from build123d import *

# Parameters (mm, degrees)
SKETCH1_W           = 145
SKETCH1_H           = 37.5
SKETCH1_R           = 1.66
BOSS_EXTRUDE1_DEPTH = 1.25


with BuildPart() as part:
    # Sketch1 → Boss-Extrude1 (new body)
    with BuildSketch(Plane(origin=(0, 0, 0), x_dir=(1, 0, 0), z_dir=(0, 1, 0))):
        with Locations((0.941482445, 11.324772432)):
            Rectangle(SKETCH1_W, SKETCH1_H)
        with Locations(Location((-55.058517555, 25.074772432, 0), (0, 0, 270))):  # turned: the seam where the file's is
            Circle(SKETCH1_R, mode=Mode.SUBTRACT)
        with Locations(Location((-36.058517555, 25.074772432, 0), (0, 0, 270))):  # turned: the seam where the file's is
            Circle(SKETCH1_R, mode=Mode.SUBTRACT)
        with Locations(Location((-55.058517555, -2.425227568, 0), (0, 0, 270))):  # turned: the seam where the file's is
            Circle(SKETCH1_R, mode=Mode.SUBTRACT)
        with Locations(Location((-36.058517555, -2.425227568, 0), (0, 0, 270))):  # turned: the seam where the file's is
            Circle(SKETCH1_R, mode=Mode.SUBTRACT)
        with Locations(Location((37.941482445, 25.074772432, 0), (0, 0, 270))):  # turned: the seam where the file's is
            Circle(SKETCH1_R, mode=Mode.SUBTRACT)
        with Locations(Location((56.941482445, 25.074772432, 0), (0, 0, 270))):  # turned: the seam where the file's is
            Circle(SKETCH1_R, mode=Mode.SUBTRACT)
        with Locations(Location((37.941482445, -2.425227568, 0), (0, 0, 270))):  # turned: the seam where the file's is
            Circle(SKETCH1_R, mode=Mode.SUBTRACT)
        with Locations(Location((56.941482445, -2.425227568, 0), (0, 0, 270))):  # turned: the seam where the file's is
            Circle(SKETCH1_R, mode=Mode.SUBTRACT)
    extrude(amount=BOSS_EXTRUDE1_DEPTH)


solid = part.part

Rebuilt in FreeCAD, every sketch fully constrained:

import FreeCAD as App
import Part
import Sketcher
Q = App.Units.Quantity

doc = App.newDocument("Part")
body = doc.addObject("PartDesign::Body", "Body")

sketch1 = body.newObject("Sketcher::SketchObject", "Sketch")
sketch1.AttachmentSupport = (doc.getObject("XZ_Plane"), [""])
sketch1.MapMode = "FlatFace"
sketch1.addGeometry([
    Part.LineSegment(App.Vector(-71.558518, -30.074772, 0), App.Vector(-71.558518, 7.425228, 0)),
    Part.LineSegment(App.Vector(-71.558518, 7.425228, 0), App.Vector(73.441482, 7.425228, 0)),
    Part.LineSegment(App.Vector(73.441482, 7.425228, 0), App.Vector(73.441482, -30.074772, 0)),
    Part.LineSegment(App.Vector(73.441482, -30.074772, 0), App.Vector(-71.558518, -30.074772, 0)),
    Part.Circle(App.Vector(-55.058518, 2.425228, 0), App.Vector(0, 0, 1), 1.66),
    Part.Circle(App.Vector(-36.058518, 2.425228, 0), App.Vector(0, 0, 1), 1.66),
    Part.Circle(App.Vector(37.941482, 2.425228, 0), App.Vector(0, 0, 1), 1.66),
    Part.Circle(App.Vector(56.941482, 2.425228, 0), App.Vector(0, 0, 1), 1.66),
    Part.Circle(App.Vector(-55.058518, -25.074772, 0), App.Vector(0, 0, 1), 1.66),
    Part.Circle(App.Vector(-36.058518, -25.074772, 0), App.Vector(0, 0, 1), 1.66),
    Part.Circle(App.Vector(37.941482, -25.074772, 0), App.Vector(0, 0, 1), 1.66),
    Part.Circle(App.Vector(56.941482, -25.074772, 0), App.Vector(0, 0, 1), 1.66),
], False)
sketch1.addConstraint([
    Sketcher.Constraint("Coincident", 0, 2, 1, 1),
    Sketcher.Constraint("Coincident", 1, 2, 2, 1),
    Sketcher.Constraint("Coincident", 2, 2, 3, 1),
    Sketcher.Constraint("Coincident", 3, 2, 0, 1),
    Sketcher.Constraint("Vertical", 0),
    Sketcher.Constraint("Horizontal", 1),
    Sketcher.Constraint("Vertical", 2),
    Sketcher.Constraint("Horizontal", 3),
    Sketcher.Constraint("Equal", 4, 5),
    Sketcher.Constraint("Equal", 5, 6),
    Sketcher.Constraint("Equal", 6, 7),
    Sketcher.Constraint("Equal", 7, 8),
    Sketcher.Constraint("Equal", 8, 9),
    Sketcher.Constraint("Equal", 9, 10),
    Sketcher.Constraint("Equal", 10, 11),
    Sketcher.Constraint("Horizontal", 4, 3, 5, 3),
    Sketcher.Constraint("Horizontal", 5, 3, 6, 3),
    Sketcher.Constraint("Horizontal", 6, 3, 7, 3),
    Sketcher.Constraint("Horizontal", 8, 3, 9, 3),
    Sketcher.Constraint("Horizontal", 9, 3, 10, 3),
    Sketcher.Constraint("Horizontal", 10, 3, 11, 3),
    Sketcher.Constraint("Vertical", 4, 3, 8, 3),
    Sketcher.Constraint("Vertical", 5, 3, 9, 3),
    Sketcher.Constraint("Vertical", 6, 3, 10, 3),
    Sketcher.Constraint("Vertical", 7, 3, 11, 3),
    Sketcher.Constraint("Diameter", 4, Q("3.32 mm")),
    Sketcher.Constraint("DistanceX", 1, 1, 1, 2, Q("145 mm")),
    Sketcher.Constraint("DistanceY", 0, 1, 0, 2, Q("37.5 mm")),
    Sketcher.Constraint("DistanceX", 4, 3, 5, 3, Q("19 mm")),
    Sketcher.Constraint("DistanceX", 5, 3, 6, 3, Q("74 mm")),
    Sketcher.Constraint("DistanceX", 6, 3, 7, 3, Q("19 mm")),
    Sketcher.Constraint("DistanceY", 4, 3, 0, 2, Q("5 mm")),
    Sketcher.Constraint("DistanceY", 2, 2, 11, 3, Q("5 mm")),
    Sketcher.Constraint("DistanceX", 0, 2, 4, 3, Q("16.5 mm")),
    Sketcher.Constraint("DistanceX", 4, 3, -1, 1, Q("55.058518 mm")),
    Sketcher.Constraint("DistanceY", -1, 1, 4, 3, Q("2.425228 mm")),
])
pad1 = body.newObject("PartDesign::Pad", "Pad")
pad1.Profile = sketch1
pad1.Length = 1.25
pad1.Reversed = True

doc.recompute()
